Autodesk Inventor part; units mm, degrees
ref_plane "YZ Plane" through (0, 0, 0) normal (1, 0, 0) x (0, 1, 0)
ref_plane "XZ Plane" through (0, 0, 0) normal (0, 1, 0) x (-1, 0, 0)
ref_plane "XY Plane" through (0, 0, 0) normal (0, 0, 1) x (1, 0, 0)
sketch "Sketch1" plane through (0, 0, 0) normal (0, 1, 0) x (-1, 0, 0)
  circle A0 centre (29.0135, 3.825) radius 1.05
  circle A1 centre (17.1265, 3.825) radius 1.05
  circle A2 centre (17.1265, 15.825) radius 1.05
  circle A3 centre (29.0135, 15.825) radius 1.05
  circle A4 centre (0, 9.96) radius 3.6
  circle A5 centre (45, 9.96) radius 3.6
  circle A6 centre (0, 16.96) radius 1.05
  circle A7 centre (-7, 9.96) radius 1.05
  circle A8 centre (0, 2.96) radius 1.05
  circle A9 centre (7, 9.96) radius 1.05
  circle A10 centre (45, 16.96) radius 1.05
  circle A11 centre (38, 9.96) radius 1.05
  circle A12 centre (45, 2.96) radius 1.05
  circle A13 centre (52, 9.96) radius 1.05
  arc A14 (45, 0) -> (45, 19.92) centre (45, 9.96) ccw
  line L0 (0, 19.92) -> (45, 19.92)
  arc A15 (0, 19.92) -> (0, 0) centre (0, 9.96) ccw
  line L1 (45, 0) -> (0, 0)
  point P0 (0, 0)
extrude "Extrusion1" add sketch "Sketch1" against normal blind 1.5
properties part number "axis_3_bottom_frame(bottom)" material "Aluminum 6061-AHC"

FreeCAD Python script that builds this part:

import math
import FreeCAD as App
import Part
import Sketcher
from FreeCAD import Vector

doc = App.newDocument("Part")
body = doc.addObject("PartDesign::Body", "Body")

# Sketch on XZ plane
sketch1 = doc.addObject("Sketcher::SketchObject", "Sketch")
body.addObject(sketch1)
sketch1.AttachmentSupport = (doc.XZ_Plane, [""])
sketch1.MapMode = "FlatFace"
sketch1.addGeometry([
    Part.LineSegment(Vector(0, 0, 0), Vector(-45, 0, 0)),  # 0
    Part.ArcOfCircle(Part.Circle(Vector(-45, 9.96, 0), Vector(0, 0, 1), 9.96), math.radians(90), math.radians(270)),  # 1
    Part.LineSegment(Vector(-45, 19.92, 0), Vector(0, 19.92, 0)),  # 2
    Part.ArcOfCircle(Part.Circle(Vector(0, 9.96, 0), Vector(0, 0, 1), 9.96), math.radians(-90), math.radians(90)),  # 3
    Part.Circle(Vector(0, 2.96, 0), Vector(0, 0, 1), 1.05),  # 4
    Part.Circle(Vector(-17.1265, 3.825, 0), Vector(0, 0, 1), 1.05),  # 5
    Part.Circle(Vector(7, 9.96, 0), Vector(0, 0, 1), 1.05),  # 6
    Part.Circle(Vector(0, 9.96, 0), Vector(0, 0, 1), 3.6),  # 7
    Part.Circle(Vector(-7, 9.96, 0), Vector(0, 0, 1), 1.05),  # 8
    Part.Circle(Vector(-29.0135, 3.825, 0), Vector(0, 0, 1), 1.05),  # 9
    Part.Circle(Vector(-45, 2.96, 0), Vector(0, 0, 1), 1.05),  # 10
    Part.Circle(Vector(-38, 9.96, 0), Vector(0, 0, 1), 1.05),  # 11
    Part.Circle(Vector(-45, 9.96, 0), Vector(0, 0, 1), 3.6),  # 12
    Part.Circle(Vector(-52, 9.96, 0), Vector(0, 0, 1), 1.05),  # 13
    Part.Circle(Vector(0, 16.96, 0), Vector(0, 0, 1), 1.05),  # 14
    Part.Circle(Vector(-17.1265, 15.825, 0), Vector(0, 0, 1), 1.05),  # 15
    Part.Circle(Vector(-29.0135, 15.825, 0), Vector(0, 0, 1), 1.05),  # 16
    Part.Circle(Vector(-45, 16.96, 0), Vector(0, 0, 1), 1.05),  # 17
], False)
sketch1.addConstraint([
    Sketcher.Constraint("Tangent", 0, 2, 1, 2),
    Sketcher.Constraint("Tangent", 1, 1, 2, 1),
    Sketcher.Constraint("Tangent", 2, 2, 3, 2),
    Sketcher.Constraint("Tangent", 3, 1, 0, 1),
    Sketcher.Constraint("Horizontal", 0),
    Sketcher.Constraint("Horizontal", 2),
    Sketcher.Constraint("Coincident", 3, 1, -1, 1),
    Sketcher.Constraint("Coincident", 7, 3, 3, 3),
    Sketcher.Constraint("Coincident", 12, 3, 1, 3),
    Sketcher.Constraint("Equal", 4, 5),
    Sketcher.Constraint("Equal", 5, 6),
    Sketcher.Constraint("Equal", 6, 8),
    Sketcher.Constraint("Equal", 8, 9),
    Sketcher.Constraint("Equal", 9, 10),
    Sketcher.Constraint("Equal", 10, 11),
    Sketcher.Constraint("Equal", 7, 12),
    Sketcher.Constraint("Equal", 11, 13),
    Sketcher.Constraint("Equal", 13, 14),
    Sketcher.Constraint("Equal", 14, 15),
    Sketcher.Constraint("Equal", 15, 16),
    Sketcher.Constraint("Equal", 16, 17),
    Sketcher.Constraint("Symmetric", 6, 3, 8, 3, -2),
    Sketcher.Constraint("PointOnObject", 4, 3, -2),
    Sketcher.Constraint("PointOnObject", 14, 3, -2),
    Sketcher.Constraint("Horizontal", 3, 3, 6, 3),
    Sketcher.Constraint("Horizontal", 5, 3, 9, 3),
    Sketcher.Constraint("Horizontal", 4, 3, 10, 3),
    Sketcher.Constraint("Horizontal", 8, 3, 11, 3),
    Sketcher.Constraint("Horizontal", 12, 3, 13, 3),
    Sketcher.Constraint("Horizontal", 15, 3, 16, 3),
    Sketcher.Constraint("Horizontal", 14, 3, 17, 3),
    Sketcher.Constraint("Vertical", 1, 3, 10, 3),
    Sketcher.Constraint("Vertical", 5, 3, 15, 3),
    Sketcher.Constraint("Vertical", 9, 3, 16, 3),
    Sketcher.Constraint("Vertical", 12, 3, 17, 3),
    Sketcher.Constraint("Diameter", 4, 2.1),
    Sketcher.Constraint("Diameter", 7, 7.2),
    Sketcher.Constraint("DistanceX", 0, 2, 0, 1, 45.0),
    Sketcher.Constraint("Radius", 1, 9.96),
    Sketcher.Constraint("DistanceX", -1, 1, 6, 3, 7.0),
    Sketcher.Constraint("DistanceX", 11, 3, -1, 1, 38.0),
    Sketcher.Constraint("DistanceX", 13, 3, -1, 1, 52.0),
    Sketcher.Constraint("DistanceY", 4, 3, 3, 3, 7.0),
    Sketcher.Constraint("DistanceY", 3, 3, 14, 3, 7.0),
    Sketcher.Constraint("DistanceY", 5, 3, 15, 3, 12.0),
    Sketcher.Constraint("DistanceY", -1, 1, 5, 3, 3.825),
    Sketcher.Constraint("DistanceX", 9, 3, 5, 3, 11.887),
    Sketcher.Constraint("DistanceX", 5, 3, -1, 1, 17.1265),
])
pad1 = doc.addObject("PartDesign::Pad", "Pad")
body.addObject(pad1)
pad1.Profile = sketch1
pad1.Length = 1.5

doc.recompute()
